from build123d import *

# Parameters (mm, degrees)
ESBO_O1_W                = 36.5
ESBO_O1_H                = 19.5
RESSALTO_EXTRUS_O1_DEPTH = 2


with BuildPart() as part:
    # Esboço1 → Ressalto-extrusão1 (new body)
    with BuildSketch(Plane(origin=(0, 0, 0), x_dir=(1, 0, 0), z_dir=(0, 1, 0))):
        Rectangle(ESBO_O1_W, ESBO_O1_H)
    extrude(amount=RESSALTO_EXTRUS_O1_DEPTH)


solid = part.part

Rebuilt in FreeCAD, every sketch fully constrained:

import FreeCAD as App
import Part
import Sketcher


def add_polygon(sketch, points):
    """Adds a closed chain of lines whose ends are joined by coincident constraints."""
    first, n = sketch.GeometryCount, len(points)
    for a, b in zip(points, points[1:] + points[:1]):
        sketch.addGeometry(Part.LineSegment(App.Vector(*a, 0), App.Vector(*b, 0)), False)
    for i in range(n):
        sketch.addConstraint(Sketcher.Constraint("Coincident", first + i, 2, first + (i + 1) % n, 1))

doc = App.newDocument("Part")
params = doc.addObject("Spreadsheet::Sheet", "Params")
for row, (alias, value) in enumerate([
    ("sketch1_width", "36.5 mm"),
    ("sketch1_height", "19.5 mm"),
    ("pad1_length", "2 mm"),
], start=1):
    params.set(f"A{row}", alias)
    params.set(f"B{row}", "=" + value)
    params.setAlias(f"B{row}", alias)

body = doc.addObject("PartDesign::Body", "Body")

# Sketch on XZ plane
sketch1 = body.newObject("Sketcher::SketchObject", "Sketch")
sketch1.AttachmentSupport = (doc.getObject("XZ_Plane"), [""])
sketch1.MapMode = "FlatFace"
add_polygon(sketch1, [(-18.25, -9.75), (-18.25, 9.75), (18.25, 9.75), (18.25, -9.75)])  # lines 0-3
sketch1.addConstraint([
    Sketcher.Constraint("Vertical", 0),
    Sketcher.Constraint("Horizontal", 1),
    Sketcher.Constraint("Vertical", 2),
    Sketcher.Constraint("Horizontal", 3),
    Sketcher.Constraint("Symmetric", 0, 2, 2, 2, -1, 1),
    Sketcher.Constraint("DistanceX", 1, 1, 1, 2, 36.5),
    Sketcher.Constraint("DistanceY", 0, 1, 0, 2, 19.5),
])
sketch1.setExpression("Constraints[9]", "Params.sketch1_width")
sketch1.setExpression("Constraints[10]", "Params.sketch1_height")
pad1 = body.newObject("PartDesign::Pad", "Pad")
pad1.Profile = sketch1
pad1.setExpression("Length", "Params.pad1_length")
pad1.Reversed = True

doc.recompute()
